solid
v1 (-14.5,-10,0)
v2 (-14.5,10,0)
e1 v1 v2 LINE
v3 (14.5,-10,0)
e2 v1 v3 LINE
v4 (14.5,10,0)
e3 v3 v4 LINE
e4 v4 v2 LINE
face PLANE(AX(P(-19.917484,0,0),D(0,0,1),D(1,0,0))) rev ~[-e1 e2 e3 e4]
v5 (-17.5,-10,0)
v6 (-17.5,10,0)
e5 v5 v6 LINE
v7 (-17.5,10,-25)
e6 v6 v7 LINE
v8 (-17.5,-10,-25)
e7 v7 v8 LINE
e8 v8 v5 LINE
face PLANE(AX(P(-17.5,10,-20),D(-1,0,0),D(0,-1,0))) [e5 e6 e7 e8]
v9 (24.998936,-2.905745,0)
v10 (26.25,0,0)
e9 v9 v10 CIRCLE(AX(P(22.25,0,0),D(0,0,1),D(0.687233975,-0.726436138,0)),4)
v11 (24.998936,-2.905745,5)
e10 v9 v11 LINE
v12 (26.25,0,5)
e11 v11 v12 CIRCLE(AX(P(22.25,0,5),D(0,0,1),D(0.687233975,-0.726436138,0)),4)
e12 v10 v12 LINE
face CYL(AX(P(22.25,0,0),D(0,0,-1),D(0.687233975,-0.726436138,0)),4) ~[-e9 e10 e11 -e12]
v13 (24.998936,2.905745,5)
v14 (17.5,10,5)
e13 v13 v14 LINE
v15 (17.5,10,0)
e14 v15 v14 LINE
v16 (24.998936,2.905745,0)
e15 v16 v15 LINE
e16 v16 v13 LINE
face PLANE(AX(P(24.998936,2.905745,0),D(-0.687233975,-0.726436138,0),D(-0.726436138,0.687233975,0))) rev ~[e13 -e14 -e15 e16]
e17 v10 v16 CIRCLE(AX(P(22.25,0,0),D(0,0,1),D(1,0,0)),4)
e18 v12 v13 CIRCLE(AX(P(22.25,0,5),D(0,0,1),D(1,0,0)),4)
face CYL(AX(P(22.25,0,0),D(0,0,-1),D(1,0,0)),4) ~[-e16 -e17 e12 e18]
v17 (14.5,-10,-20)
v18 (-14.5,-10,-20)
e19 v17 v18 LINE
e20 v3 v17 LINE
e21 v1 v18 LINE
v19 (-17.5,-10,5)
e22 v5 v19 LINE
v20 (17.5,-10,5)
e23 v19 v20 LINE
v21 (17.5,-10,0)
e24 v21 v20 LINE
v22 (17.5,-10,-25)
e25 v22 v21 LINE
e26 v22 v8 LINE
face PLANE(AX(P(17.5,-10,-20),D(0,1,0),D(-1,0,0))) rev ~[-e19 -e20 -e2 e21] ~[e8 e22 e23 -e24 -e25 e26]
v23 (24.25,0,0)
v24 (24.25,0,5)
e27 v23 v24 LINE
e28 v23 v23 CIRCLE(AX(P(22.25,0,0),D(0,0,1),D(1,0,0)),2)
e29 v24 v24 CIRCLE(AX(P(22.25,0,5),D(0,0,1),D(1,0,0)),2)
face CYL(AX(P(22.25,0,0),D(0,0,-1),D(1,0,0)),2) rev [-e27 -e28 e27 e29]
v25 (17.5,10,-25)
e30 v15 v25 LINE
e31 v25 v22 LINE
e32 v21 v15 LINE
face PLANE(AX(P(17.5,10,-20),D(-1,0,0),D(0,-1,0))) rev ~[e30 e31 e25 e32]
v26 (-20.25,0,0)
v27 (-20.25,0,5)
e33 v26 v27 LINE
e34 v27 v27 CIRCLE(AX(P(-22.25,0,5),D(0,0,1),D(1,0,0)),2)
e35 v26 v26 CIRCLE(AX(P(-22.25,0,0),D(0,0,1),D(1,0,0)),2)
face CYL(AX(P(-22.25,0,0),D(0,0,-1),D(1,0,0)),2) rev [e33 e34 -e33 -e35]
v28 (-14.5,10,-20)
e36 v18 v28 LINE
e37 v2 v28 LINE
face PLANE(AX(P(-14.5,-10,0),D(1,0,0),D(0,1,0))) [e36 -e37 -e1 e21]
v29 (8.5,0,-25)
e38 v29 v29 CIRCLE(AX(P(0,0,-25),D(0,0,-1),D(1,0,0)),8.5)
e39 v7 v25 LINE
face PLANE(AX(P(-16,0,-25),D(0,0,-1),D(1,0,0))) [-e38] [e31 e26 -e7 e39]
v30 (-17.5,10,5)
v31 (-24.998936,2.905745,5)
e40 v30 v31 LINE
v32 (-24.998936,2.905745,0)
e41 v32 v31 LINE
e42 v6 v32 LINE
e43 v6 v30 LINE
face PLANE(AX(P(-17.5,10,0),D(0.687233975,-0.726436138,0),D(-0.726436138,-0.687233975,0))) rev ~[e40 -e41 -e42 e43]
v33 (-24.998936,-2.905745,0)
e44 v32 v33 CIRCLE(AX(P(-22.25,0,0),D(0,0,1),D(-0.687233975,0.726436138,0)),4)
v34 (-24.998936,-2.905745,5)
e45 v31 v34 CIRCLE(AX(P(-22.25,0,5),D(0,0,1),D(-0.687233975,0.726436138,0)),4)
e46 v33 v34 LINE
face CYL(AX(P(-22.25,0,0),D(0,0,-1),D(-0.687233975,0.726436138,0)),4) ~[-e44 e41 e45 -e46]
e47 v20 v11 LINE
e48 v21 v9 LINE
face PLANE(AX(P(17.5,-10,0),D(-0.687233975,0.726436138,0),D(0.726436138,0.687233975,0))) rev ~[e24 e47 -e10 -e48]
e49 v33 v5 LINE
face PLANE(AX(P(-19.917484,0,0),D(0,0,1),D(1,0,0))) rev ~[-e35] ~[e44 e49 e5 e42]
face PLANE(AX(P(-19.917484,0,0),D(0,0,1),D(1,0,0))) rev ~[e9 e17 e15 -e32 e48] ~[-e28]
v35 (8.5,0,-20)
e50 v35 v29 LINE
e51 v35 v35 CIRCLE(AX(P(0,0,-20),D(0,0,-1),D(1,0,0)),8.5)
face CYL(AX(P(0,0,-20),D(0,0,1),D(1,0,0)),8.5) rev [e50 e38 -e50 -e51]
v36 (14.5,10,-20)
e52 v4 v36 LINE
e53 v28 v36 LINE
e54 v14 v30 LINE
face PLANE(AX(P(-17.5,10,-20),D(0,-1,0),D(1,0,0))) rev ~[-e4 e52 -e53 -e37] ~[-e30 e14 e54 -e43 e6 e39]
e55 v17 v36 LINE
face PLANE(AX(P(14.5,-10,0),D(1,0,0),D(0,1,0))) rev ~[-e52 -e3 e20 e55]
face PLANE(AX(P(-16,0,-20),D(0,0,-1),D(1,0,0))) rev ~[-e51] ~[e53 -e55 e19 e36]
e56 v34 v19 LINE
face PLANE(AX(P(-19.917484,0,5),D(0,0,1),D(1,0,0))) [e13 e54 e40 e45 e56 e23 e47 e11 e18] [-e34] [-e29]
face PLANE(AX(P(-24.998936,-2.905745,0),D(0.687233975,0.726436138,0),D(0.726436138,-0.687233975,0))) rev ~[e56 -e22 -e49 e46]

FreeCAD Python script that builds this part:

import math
import FreeCAD as App
import Part
import Sketcher
from FreeCAD import Vector
Q = App.Units.Quantity

doc = App.newDocument("Part")
body = doc.addObject("PartDesign::Body", "Body")

sketch1 = body.newObject("Sketcher::SketchObject", "Sketch")
sketch1.AttachmentSupport = (doc.getObject("XY_Plane"), [""])
sketch1.MapMode = "FlatFace"
sketch1.addGeometry([
    Part.LineSegment(Vector(-24.998936, -2.905745, 0), Vector(-17.5, -10, 0)),
    Part.LineSegment(Vector(-17.5, -10, 0), Vector(17.5, -10, 0)),
    Part.LineSegment(Vector(17.5, -10, 0), Vector(24.998936, -2.905745, 0)),
    Part.ArcOfCircle(Part.Circle(Vector(22.25, 0, 0), Vector(0, 0, 1), 4), math.radians(-46.588449), math.radians(0)),
    Part.ArcOfCircle(Part.Circle(Vector(22.25, 0, 0), Vector(0, 0, 1), 4), math.radians(0), math.radians(46.588449)),
    Part.LineSegment(Vector(24.998936, 2.905745, 0), Vector(17.5, 10, 0)),
    Part.LineSegment(Vector(17.5, 10, 0), Vector(-17.5, 10, 0)),
    Part.LineSegment(Vector(-17.5, 10, 0), Vector(-24.998936, 2.905745, 0)),
    Part.ArcOfCircle(Part.Circle(Vector(-22.25, 0, 0), Vector(0, 0, 1), 4), math.radians(133.411551), math.radians(226.588449)),
    Part.Circle(Vector(-22.25, 0, 0), Vector(0, 0, 1), 2),
    Part.Circle(Vector(22.25, 0, 0), Vector(0, 0, 1), 2),
], False)
sketch1.addConstraint([
    Sketcher.Constraint("Coincident", 0, 2, 1, 1),
    Sketcher.Constraint("Coincident", 1, 2, 2, 1),
    Sketcher.Constraint("Tangent", 2, 2, 3, 1),
    Sketcher.Constraint("Tangent", 3, 2, 4, 1),
    Sketcher.Constraint("Tangent", 4, 2, 5, 1),
    Sketcher.Constraint("Coincident", 5, 2, 6, 1),
    Sketcher.Constraint("Coincident", 6, 2, 7, 1),
    Sketcher.Constraint("Tangent", 7, 2, 8, 1),
    Sketcher.Constraint("Tangent", 8, 2, 0, 1),
    Sketcher.Constraint("Horizontal", 1),
    Sketcher.Constraint("Horizontal", 6),
    Sketcher.Constraint("Coincident", 9, 3, 8, 3),
    Sketcher.Constraint("Coincident", 10, 3, 3, 3),
    Sketcher.Constraint("Equal", 3, 4),
    Sketcher.Constraint("Equal", 4, 8),
    Sketcher.Constraint("Equal", 9, 10),
    Sketcher.Constraint("Symmetric", 3, 3, 8, 3, -1, 1),
    Sketcher.Constraint("Symmetric", 0, 2, 5, 2, -1, 1),
    Sketcher.Constraint("Symmetric", 4, 2, 7, 2, -2),
    Sketcher.Constraint("PointOnObject", 3, 2, -1),
    Sketcher.Constraint("Parallel", 2, 7),
    Sketcher.Constraint("Diameter", 9, Q("4 mm")),
    Sketcher.Constraint("Radius", 3, Q("4 mm")),
    Sketcher.Constraint("DistanceX", 1, 1, 1, 2, Q("35 mm")),
    Sketcher.Constraint("DistanceY", 0, 2, -1, 1, Q("10 mm")),
    Sketcher.Constraint("DistanceX", 8, 3, 3, 3, Q("44.5 mm")),
])
pad1 = body.newObject("PartDesign::Pad", "Pad")
pad1.Profile = sketch1
pad1.Length = 5

sketch2 = body.newObject("Sketcher::SketchObject", "Sketch001")
sketch2.AttachmentSupport = (doc.getObject("XY_Plane"), [""])
sketch2.MapMode = "FlatFace"
sketch2.addGeometry([
    Part.LineSegment(Vector(-17.5, 10, 0), Vector(-17.5, -10, 0)),
    Part.LineSegment(Vector(-17.5, -10, 0), Vector(-14.5, -10, 0)),
    Part.LineSegment(Vector(-14.5, -10, 0), Vector(-14.5, 10, 0)),
    Part.LineSegment(Vector(-14.5, 10, 0), Vector(-17.5, 10, 0)),
    Part.LineSegment(Vector(14.5, 10, 0), Vector(14.5, -10, 0)),
    Part.LineSegment(Vector(14.5, -10, 0), Vector(17.5, -10, 0)),
    Part.LineSegment(Vector(17.5, -10, 0), Vector(17.5, 10, 0)),
    Part.LineSegment(Vector(17.5, 10, 0), Vector(14.5, 10, 0)),
], False)
sketch2.addConstraint([
    Sketcher.Constraint("Coincident", 0, 2, 1, 1),
    Sketcher.Constraint("Coincident", 1, 2, 2, 1),
    Sketcher.Constraint("Coincident", 2, 2, 3, 1),
    Sketcher.Constraint("Coincident", 3, 2, 0, 1),
    Sketcher.Constraint("Coincident", 4, 2, 5, 1),
    Sketcher.Constraint("Coincident", 5, 2, 6, 1),
    Sketcher.Constraint("Coincident", 6, 2, 7, 1),
    Sketcher.Constraint("Coincident", 7, 2, 4, 1),
    Sketcher.Constraint("Vertical", 0),
    Sketcher.Constraint("Horizontal", 1),
    Sketcher.Constraint("Vertical", 2),
    Sketcher.Constraint("Horizontal", 3),
    Sketcher.Constraint("Vertical", 4),
    Sketcher.Constraint("Horizontal", 5),
    Sketcher.Constraint("Vertical", 6),
    Sketcher.Constraint("Horizontal", 7),
    Sketcher.Constraint("Symmetric", 2, 2, 4, 2, -1, 1),
    Sketcher.Constraint("Symmetric", 0, 2, 6, 2, -1, 1),
    Sketcher.Constraint("Horizontal", 1, 2, 4, 2),
    Sketcher.Constraint("DistanceX", 1, 1, 1, 2, Q("3 mm")),
    Sketcher.Constraint("DistanceY", 0, 2, 0, 1, Q("20 mm")),
    Sketcher.Constraint("DistanceX", 1, 2, 4, 2, Q("29 mm")),
])
pad2 = body.newObject("PartDesign::Pad", "Pad001")
pad2.Profile = sketch2
pad2.Length = 20
pad2.Reversed = True

sketch3 = body.newObject("Sketcher::SketchObject", "Sketch002")
sketch3.AttachmentSupport = (doc.getObject("XY_Plane"), [""])
sketch3.MapMode = "FlatFace"
sketch3.AttachmentOffset = App.Placement(Vector(0, 0, -20), App.Rotation())
sketch3.addGeometry([
    Part.LineSegment(Vector(-17.5, -10, 0), Vector(-17.5, 10, 0)),
    Part.LineSegment(Vector(-17.5, 10, 0), Vector(17.5, 10, 0)),
    Part.LineSegment(Vector(17.5, 10, 0), Vector(17.5, -10, 0)),
    Part.LineSegment(Vector(17.5, -10, 0), Vector(-17.5, -10, 0)),
    Part.Circle(Vector(0, 0, 0), Vector(0, 0, 1), 8.5),
], False)
sketch3.addConstraint([
    Sketcher.Constraint("Coincident", 0, 2, 1, 1),
    Sketcher.Constraint("Coincident", 1, 2, 2, 1),
    Sketcher.Constraint("Coincident", 2, 2, 3, 1),
    Sketcher.Constraint("Coincident", 3, 2, 0, 1),
    Sketcher.Constraint("Vertical", 0),
    Sketcher.Constraint("Horizontal", 1),
    Sketcher.Constraint("Vertical", 2),
    Sketcher.Constraint("Horizontal", 3),
    Sketcher.Constraint("Coincident", 4, 3, -1, 1),
    Sketcher.Constraint("Symmetric", 0, 2, 2, 2, -1, 1),
    Sketcher.Constraint("Diameter", 4, Q("17 mm")),
    Sketcher.Constraint("DistanceX", 1, 1, 1, 2, Q("35 mm")),
    Sketcher.Constraint("DistanceY", 0, 1, 0, 2, Q("20 mm")),
])
pad3 = body.newObject("PartDesign::Pad", "Pad002")
pad3.Profile = sketch3
pad3.Length = 5
pad3.Reversed = True

doc.recompute()
